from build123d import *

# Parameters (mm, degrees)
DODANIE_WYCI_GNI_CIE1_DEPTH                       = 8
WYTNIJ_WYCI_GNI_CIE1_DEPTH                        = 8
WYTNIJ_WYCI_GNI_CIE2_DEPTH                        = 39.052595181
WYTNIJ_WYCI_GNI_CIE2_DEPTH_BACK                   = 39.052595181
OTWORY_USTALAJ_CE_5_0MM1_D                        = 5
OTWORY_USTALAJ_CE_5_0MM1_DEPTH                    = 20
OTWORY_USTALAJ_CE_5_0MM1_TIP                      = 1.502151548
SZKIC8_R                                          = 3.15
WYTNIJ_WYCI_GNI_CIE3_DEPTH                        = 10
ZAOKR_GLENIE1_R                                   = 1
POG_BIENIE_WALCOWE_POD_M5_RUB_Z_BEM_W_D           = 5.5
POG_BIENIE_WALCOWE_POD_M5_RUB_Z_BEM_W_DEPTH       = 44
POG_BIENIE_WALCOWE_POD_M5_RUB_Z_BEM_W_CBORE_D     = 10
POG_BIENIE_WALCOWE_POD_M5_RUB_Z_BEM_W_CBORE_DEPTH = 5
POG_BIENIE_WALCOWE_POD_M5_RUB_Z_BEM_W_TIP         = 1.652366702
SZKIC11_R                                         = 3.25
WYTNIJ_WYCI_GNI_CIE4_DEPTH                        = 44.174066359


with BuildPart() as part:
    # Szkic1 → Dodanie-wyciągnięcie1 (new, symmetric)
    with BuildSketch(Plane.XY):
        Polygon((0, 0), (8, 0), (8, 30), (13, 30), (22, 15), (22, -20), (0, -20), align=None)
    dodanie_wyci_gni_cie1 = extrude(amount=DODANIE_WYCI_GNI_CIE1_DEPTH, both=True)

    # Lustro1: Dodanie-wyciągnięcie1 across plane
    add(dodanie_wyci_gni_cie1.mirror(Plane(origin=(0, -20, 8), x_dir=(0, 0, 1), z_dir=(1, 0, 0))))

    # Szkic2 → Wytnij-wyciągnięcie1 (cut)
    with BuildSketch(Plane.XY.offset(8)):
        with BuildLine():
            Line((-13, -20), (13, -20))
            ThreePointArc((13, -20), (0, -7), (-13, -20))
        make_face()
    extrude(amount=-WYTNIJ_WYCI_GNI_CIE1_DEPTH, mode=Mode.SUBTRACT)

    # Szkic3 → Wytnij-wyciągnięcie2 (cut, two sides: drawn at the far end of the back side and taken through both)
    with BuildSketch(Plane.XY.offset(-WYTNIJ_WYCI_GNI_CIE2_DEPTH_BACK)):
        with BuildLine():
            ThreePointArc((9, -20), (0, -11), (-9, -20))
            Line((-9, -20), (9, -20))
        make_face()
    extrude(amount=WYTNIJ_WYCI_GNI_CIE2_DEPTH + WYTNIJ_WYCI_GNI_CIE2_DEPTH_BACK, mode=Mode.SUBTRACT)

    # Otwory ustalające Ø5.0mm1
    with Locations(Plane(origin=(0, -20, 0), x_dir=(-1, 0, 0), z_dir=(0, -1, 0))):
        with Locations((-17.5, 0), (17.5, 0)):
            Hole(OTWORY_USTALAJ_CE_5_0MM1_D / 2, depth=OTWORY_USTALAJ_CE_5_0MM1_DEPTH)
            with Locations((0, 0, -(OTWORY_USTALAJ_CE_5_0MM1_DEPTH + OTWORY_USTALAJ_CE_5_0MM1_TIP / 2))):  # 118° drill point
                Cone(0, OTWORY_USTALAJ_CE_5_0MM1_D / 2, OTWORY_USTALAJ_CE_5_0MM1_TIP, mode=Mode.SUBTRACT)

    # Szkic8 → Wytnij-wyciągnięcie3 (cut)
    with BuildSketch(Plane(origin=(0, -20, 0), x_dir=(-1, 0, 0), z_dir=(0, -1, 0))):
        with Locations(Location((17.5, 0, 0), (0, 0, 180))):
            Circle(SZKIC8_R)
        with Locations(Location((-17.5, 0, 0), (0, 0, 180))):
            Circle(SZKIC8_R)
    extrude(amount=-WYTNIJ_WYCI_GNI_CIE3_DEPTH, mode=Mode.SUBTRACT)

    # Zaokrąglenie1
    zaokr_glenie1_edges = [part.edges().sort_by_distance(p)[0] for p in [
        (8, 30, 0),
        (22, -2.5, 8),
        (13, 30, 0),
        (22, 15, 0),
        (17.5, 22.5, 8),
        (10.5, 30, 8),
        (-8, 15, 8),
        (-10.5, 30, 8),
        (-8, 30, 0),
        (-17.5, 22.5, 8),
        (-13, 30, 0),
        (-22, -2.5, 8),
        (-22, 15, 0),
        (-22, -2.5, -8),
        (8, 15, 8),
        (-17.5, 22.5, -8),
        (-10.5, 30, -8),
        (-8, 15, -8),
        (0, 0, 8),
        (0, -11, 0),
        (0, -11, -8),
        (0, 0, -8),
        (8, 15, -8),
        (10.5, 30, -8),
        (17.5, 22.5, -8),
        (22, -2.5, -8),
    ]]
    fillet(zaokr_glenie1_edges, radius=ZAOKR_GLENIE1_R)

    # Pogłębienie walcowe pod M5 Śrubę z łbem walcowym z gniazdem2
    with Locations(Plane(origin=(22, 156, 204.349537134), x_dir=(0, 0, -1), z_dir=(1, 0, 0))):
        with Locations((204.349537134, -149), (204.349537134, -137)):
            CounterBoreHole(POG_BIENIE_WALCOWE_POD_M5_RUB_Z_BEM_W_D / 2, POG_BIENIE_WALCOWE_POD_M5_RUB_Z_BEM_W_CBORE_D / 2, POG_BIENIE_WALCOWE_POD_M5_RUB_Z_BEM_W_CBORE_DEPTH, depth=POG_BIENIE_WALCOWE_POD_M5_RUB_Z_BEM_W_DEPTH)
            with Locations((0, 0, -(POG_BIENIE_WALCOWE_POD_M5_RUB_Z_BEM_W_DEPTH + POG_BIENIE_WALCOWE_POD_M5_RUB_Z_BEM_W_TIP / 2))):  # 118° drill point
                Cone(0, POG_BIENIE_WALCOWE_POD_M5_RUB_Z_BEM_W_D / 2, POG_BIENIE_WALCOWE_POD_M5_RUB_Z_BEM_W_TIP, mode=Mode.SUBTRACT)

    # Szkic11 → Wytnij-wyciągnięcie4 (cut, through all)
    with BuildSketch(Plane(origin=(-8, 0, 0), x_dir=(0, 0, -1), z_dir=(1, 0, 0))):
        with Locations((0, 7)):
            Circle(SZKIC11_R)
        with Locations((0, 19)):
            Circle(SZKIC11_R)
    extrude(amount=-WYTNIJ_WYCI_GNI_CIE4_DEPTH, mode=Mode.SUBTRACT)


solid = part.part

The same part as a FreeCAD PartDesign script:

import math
import FreeCAD as App
import Part
import Sketcher
from FreeCAD import Vector
Q = App.Units.Quantity


def edges_at(feature, points):
    """Names of the edges that pass closest to the given points."""
    edges = feature.Shape.Edges
    near = lambda p: min(range(len(edges)), key=lambda i: edges[i].distToShape(Part.Vertex(*p))[0])
    return sorted({f"Edge{near(p) + 1}" for p in points})

doc = App.newDocument("Part")
body = doc.addObject("PartDesign::Body", "Body")

# Sketch on XY plane
sketch1 = doc.addObject("Sketcher::SketchObject", "Sketch")
body.addObject(sketch1)
sketch1.AttachmentSupport = (doc.XY_Plane, [""])
sketch1.MapMode = "FlatFace"
sketch1.addGeometry([
    Part.LineSegment(Vector(8, 0, 0), Vector(0, 0, 0)),  # 0
    Part.LineSegment(Vector(0, 0, 0), Vector(0, -20, 0)),  # 1
    Part.LineSegment(Vector(0, -20, 0), Vector(22, -20, 0)),  # 2
    Part.LineSegment(Vector(22, -20, 0), Vector(22, 15, 0)),  # 3
    Part.LineSegment(Vector(22, 15, 0), Vector(13, 30, 0)),  # 4
    Part.LineSegment(Vector(13, 30, 0), Vector(8, 30, 0)),  # 5
    Part.LineSegment(Vector(8, 30, 0), Vector(8, 0, 0)),  # 6
], False)
sketch1.addConstraint([
    Sketcher.Constraint("Coincident", 0, 2, 1, 1),
    Sketcher.Constraint("Coincident", 1, 2, 2, 1),
    Sketcher.Constraint("Coincident", 2, 2, 3, 1),
    Sketcher.Constraint("Coincident", 3, 2, 4, 1),
    Sketcher.Constraint("Coincident", 4, 2, 5, 1),
    Sketcher.Constraint("Coincident", 5, 2, 6, 1),
    Sketcher.Constraint("Coincident", 6, 2, 0, 1),
    Sketcher.Constraint("Horizontal", 0),
    Sketcher.Constraint("Vertical", 1),
    Sketcher.Constraint("Horizontal", 2),
    Sketcher.Constraint("Vertical", 3),
    Sketcher.Constraint("Horizontal", 5),
    Sketcher.Constraint("Vertical", 6),
    Sketcher.Constraint("Coincident", 0, 2, -1, 1),
    Sketcher.Constraint("DistanceX", 0, 2, 0, 1, Q("8 mm")),
    Sketcher.Constraint("DistanceX", 2, 1, 2, 2, Q("22 mm")),
    Sketcher.Constraint("DistanceX", 5, 2, 5, 1, Q("5 mm")),
    Sketcher.Constraint("DistanceY", 1, 2, 1, 1, Q("20 mm")),
    Sketcher.Constraint("DistanceY", 3, 1, 3, 2, Q("35 mm")),
    Sketcher.Constraint("DistanceY", 6, 2, 6, 1, Q("30 mm")),
])
pad1 = doc.addObject("PartDesign::Pad", "Pad")
body.addObject(pad1)
pad1.Profile = sketch1
pad1.Length = 16
pad1.Midplane = True
doc.recompute()

mirrored = doc.addObject("PartDesign::Mirrored", "Mirrored")
body.addObject(mirrored)
mirrored.Originals = [pad1]
mirrored.MirrorPlane = (doc.YZ_Plane, [""])
body.Tip = mirrored

# Sketch on XY plane
sketch2 = doc.addObject("Sketcher::SketchObject", "Sketch001")
body.addObject(sketch2)
sketch2.AttachmentSupport = (doc.XY_Plane, [""])
sketch2.MapMode = "FlatFace"
sketch2.AttachmentOffset = App.Placement(Vector(0, 0, 8), App.Rotation())
sketch2.addGeometry([
    Part.LineSegment(Vector(-13, -20, 0), Vector(13, -20, 0)),
    Part.ArcOfCircle(Part.Circle(Vector(0, -20, 0), Vector(0, 0, 1), 13), math.radians(0), math.radians(180)),
], False)
sketch2.addConstraint([
    Sketcher.Constraint("Coincident", 0, 1, 1, 2),
    Sketcher.Constraint("Coincident", 1, 1, 0, 2),
    Sketcher.Constraint("Horizontal", 0),
    Sketcher.Constraint("PointOnObject", 1, 3, -2),
    Sketcher.Constraint("Horizontal", 1, 3, 0, 1),
    Sketcher.Constraint("Radius", 1, Q("13 mm")),
    Sketcher.Constraint("DistanceY", 1, 3, -1, 1, Q("20 mm")),
])
pocket1 = doc.addObject("PartDesign::Pocket", "Pocket")
body.addObject(pocket1)
pocket1.Profile = sketch2
pocket1.Length = 8

# Sketch on XY plane
sketch3 = doc.addObject("Sketcher::SketchObject", "Sketch002")
body.addObject(sketch3)
sketch3.AttachmentSupport = (doc.XY_Plane, [""])
sketch3.MapMode = "FlatFace"
sketch3.addGeometry([
    Part.ArcOfCircle(Part.Circle(Vector(0, -20, 0), Vector(0, 0, 1), 9), math.radians(0), math.radians(180)),
    Part.LineSegment(Vector(-9, -20, 0), Vector(9, -20, 0)),
], False)
sketch3.addConstraint([
    Sketcher.Constraint("Coincident", 0, 1, 1, 2),
    Sketcher.Constraint("Coincident", 1, 1, 0, 2),
    Sketcher.Constraint("Horizontal", 1),
    Sketcher.Constraint("PointOnObject", 0, 3, -2),
    Sketcher.Constraint("Radius", 0, Q("9 mm")),
    Sketcher.Constraint("DistanceY", 0, 3, -1, 1, Q("20 mm")),
    Sketcher.Constraint("DistanceY", 0, 1, -1, 1, Q("20 mm")),
])
pocket2 = doc.addObject("PartDesign::Pocket", "Pocket001")
body.addObject(pocket2)
pocket2.Profile = sketch3
pocket2.Type = "ThroughAll"
pocket2.Midplane = True

# Sketch on XZ plane
sketch4 = doc.addObject("Sketcher::SketchObject", "Sketch003")
body.addObject(sketch4)
sketch4.AttachmentSupport = (doc.XZ_Plane, [""])
sketch4.MapMode = "FlatFace"
sketch4.AttachmentOffset = App.Placement(Vector(0, 0, 20), App.Rotation())
sketch4.addGeometry([
    Part.Circle(Vector(17.5, 0, 0), Vector(0, 0, 1), 2.5),
    Part.Circle(Vector(-17.5, 0, 0), Vector(0, 0, 1), 2.5),
], False)
sketch4.addConstraint([
    Sketcher.Constraint("Equal", 0, 1),
    Sketcher.Constraint("Symmetric", 0, 3, 1, 3, -1, 1),
    Sketcher.Constraint("PointOnObject", 0, 3, -1),
    Sketcher.Constraint("Diameter", 0, Q("5 mm")),
    Sketcher.Constraint("DistanceX", 1, 3, 0, 3, Q("35 mm")),
])
doc.recompute()
hole = doc.addObject("PartDesign::Hole", "Hole")
body.addObject(hole)
hole.Profile = sketch4
hole.ThreadType = "None"
hole.Diameter = 5
hole.DepthType = "Dimension"
hole.Depth = 20
hole.DrillPoint = "Angled"
hole.DrillPointAngle = 118

# Sketch on XZ plane
sketch5 = doc.addObject("Sketcher::SketchObject", "Sketch004")
body.addObject(sketch5)
sketch5.AttachmentSupport = (doc.XZ_Plane, [""])
sketch5.MapMode = "FlatFace"
sketch5.AttachmentOffset = App.Placement(Vector(0, 0, 20), App.Rotation())
sketch5.addGeometry([
    Part.Circle(Vector(-17.5, 0, 0), Vector(0, 0, 1), 3.15),
    Part.Circle(Vector(17.5, 0, 0), Vector(0, 0, 1), 3.15),
], False)
sketch5.addConstraint([
    Sketcher.Constraint("Equal", 0, 1),
    Sketcher.Constraint("Symmetric", 0, 3, 1, 3, -1, 1),
    Sketcher.Constraint("PointOnObject", 0, 3, -1),
    Sketcher.Constraint("Diameter", 0, Q("6.3 mm")),
    Sketcher.Constraint("DistanceX", 0, 3, 1, 3, Q("35 mm")),
])
pocket3 = doc.addObject("PartDesign::Pocket", "Pocket002")
body.addObject(pocket3)
pocket3.Profile = sketch5
pocket3.Length = 10
doc.recompute()

fillet = doc.addObject("PartDesign::Fillet", "Fillet")
body.addObject(fillet)
fillet.Base = (pocket3, edges_at(pocket3, [
    (8, 30, 0),
    (22, -2.5, 8),
    (13, 30, 0),
    (22, 15, 0),
    (17.5, 22.5, 8),
    (10.5, 30, 8),
    (-8, 15, 8),
    (-10.5, 30, 8),
    (-8, 30, 0),
    (-17.5, 22.5, 8),
    (-13, 30, 0),
    (-22, -2.5, 8),
    (-22, 15, 0),
    (-22, -2.5, -8),
    (8, 15, 8),
    (-17.5, 22.5, -8),
    (-10.5, 30, -8),
    (-8, 15, -8),
    (0, 0, 8),
    (0, -11, 0),
    (0, -11, -8),
    (0, 0, -8),
    (8, 15, -8),
    (10.5, 30, -8),
    (17.5, 22.5, -8),
    (22, -2.5, -8),
]))
fillet.Radius = 1

# Sketch on YZ plane
sketch6 = doc.addObject("Sketcher::SketchObject", "Sketch005")
body.addObject(sketch6)
sketch6.AttachmentSupport = (doc.YZ_Plane, [""])
sketch6.MapMode = "FlatFace"
sketch6.AttachmentOffset = App.Placement(Vector(0, 0, 22), App.Rotation())
sketch6.addGeometry([
    Part.Circle(Vector(7, 0, 0), Vector(0, 0, 1), 2.75),
    Part.Circle(Vector(19, 0, 0), Vector(0, 0, 1), 2.75),
], False)
sketch6.addConstraint([
    Sketcher.Constraint("Equal", 0, 1),
    Sketcher.Constraint("PointOnObject", 0, 3, -1),
    Sketcher.Constraint("PointOnObject", 1, 3, -1),
    Sketcher.Constraint("Diameter", 0, Q("5.5 mm")),
    Sketcher.Constraint("DistanceX", -1, 1, 0, 3, Q("7 mm")),
    Sketcher.Constraint("DistanceX", -1, 1, 1, 3, Q("19 mm")),
])
doc.recompute()
hole2 = doc.addObject("PartDesign::Hole", "Hole001")
body.addObject(hole2)
hole2.Profile = sketch6
hole2.ThreadType = "None"
hole2.Diameter = 5.5
hole2.DepthType = "Dimension"
hole2.Depth = 44
hole2.DrillPoint = "Angled"
hole2.DrillPointAngle = 118
hole2.HoleCutType = "Counterbore"
hole2.HoleCutDiameter = 10
hole2.HoleCutDepth = 5

# Sketch on YZ plane
sketch7 = doc.addObject("Sketcher::SketchObject", "Sketch006")
body.addObject(sketch7)
sketch7.AttachmentSupport = (doc.YZ_Plane, [""])
sketch7.MapMode = "FlatFace"
sketch7.AttachmentOffset = App.Placement(Vector(0, 0, -8), App.Rotation())
sketch7.addGeometry([
    Part.Circle(Vector(7, 0, 0), Vector(0, 0, 1), 3.25),
    Part.Circle(Vector(19, 0, 0), Vector(0, 0, 1), 3.25),
], False)
sketch7.addConstraint([
    Sketcher.Constraint("Equal", 0, 1),
    Sketcher.Constraint("PointOnObject", 0, 3, -1),
    Sketcher.Constraint("PointOnObject", 1, 3, -1),
    Sketcher.Constraint("Diameter", 0, Q("6.5 mm")),
    Sketcher.Constraint("DistanceX", -1, 1, 0, 3, Q("7 mm")),
    Sketcher.Constraint("DistanceX", -1, 1, 1, 3, Q("19 mm")),
])
pocket4 = doc.addObject("PartDesign::Pocket", "Pocket003")
body.addObject(pocket4)
pocket4.Profile = sketch7
pocket4.Type = "ThroughAll"

doc.recompute()
